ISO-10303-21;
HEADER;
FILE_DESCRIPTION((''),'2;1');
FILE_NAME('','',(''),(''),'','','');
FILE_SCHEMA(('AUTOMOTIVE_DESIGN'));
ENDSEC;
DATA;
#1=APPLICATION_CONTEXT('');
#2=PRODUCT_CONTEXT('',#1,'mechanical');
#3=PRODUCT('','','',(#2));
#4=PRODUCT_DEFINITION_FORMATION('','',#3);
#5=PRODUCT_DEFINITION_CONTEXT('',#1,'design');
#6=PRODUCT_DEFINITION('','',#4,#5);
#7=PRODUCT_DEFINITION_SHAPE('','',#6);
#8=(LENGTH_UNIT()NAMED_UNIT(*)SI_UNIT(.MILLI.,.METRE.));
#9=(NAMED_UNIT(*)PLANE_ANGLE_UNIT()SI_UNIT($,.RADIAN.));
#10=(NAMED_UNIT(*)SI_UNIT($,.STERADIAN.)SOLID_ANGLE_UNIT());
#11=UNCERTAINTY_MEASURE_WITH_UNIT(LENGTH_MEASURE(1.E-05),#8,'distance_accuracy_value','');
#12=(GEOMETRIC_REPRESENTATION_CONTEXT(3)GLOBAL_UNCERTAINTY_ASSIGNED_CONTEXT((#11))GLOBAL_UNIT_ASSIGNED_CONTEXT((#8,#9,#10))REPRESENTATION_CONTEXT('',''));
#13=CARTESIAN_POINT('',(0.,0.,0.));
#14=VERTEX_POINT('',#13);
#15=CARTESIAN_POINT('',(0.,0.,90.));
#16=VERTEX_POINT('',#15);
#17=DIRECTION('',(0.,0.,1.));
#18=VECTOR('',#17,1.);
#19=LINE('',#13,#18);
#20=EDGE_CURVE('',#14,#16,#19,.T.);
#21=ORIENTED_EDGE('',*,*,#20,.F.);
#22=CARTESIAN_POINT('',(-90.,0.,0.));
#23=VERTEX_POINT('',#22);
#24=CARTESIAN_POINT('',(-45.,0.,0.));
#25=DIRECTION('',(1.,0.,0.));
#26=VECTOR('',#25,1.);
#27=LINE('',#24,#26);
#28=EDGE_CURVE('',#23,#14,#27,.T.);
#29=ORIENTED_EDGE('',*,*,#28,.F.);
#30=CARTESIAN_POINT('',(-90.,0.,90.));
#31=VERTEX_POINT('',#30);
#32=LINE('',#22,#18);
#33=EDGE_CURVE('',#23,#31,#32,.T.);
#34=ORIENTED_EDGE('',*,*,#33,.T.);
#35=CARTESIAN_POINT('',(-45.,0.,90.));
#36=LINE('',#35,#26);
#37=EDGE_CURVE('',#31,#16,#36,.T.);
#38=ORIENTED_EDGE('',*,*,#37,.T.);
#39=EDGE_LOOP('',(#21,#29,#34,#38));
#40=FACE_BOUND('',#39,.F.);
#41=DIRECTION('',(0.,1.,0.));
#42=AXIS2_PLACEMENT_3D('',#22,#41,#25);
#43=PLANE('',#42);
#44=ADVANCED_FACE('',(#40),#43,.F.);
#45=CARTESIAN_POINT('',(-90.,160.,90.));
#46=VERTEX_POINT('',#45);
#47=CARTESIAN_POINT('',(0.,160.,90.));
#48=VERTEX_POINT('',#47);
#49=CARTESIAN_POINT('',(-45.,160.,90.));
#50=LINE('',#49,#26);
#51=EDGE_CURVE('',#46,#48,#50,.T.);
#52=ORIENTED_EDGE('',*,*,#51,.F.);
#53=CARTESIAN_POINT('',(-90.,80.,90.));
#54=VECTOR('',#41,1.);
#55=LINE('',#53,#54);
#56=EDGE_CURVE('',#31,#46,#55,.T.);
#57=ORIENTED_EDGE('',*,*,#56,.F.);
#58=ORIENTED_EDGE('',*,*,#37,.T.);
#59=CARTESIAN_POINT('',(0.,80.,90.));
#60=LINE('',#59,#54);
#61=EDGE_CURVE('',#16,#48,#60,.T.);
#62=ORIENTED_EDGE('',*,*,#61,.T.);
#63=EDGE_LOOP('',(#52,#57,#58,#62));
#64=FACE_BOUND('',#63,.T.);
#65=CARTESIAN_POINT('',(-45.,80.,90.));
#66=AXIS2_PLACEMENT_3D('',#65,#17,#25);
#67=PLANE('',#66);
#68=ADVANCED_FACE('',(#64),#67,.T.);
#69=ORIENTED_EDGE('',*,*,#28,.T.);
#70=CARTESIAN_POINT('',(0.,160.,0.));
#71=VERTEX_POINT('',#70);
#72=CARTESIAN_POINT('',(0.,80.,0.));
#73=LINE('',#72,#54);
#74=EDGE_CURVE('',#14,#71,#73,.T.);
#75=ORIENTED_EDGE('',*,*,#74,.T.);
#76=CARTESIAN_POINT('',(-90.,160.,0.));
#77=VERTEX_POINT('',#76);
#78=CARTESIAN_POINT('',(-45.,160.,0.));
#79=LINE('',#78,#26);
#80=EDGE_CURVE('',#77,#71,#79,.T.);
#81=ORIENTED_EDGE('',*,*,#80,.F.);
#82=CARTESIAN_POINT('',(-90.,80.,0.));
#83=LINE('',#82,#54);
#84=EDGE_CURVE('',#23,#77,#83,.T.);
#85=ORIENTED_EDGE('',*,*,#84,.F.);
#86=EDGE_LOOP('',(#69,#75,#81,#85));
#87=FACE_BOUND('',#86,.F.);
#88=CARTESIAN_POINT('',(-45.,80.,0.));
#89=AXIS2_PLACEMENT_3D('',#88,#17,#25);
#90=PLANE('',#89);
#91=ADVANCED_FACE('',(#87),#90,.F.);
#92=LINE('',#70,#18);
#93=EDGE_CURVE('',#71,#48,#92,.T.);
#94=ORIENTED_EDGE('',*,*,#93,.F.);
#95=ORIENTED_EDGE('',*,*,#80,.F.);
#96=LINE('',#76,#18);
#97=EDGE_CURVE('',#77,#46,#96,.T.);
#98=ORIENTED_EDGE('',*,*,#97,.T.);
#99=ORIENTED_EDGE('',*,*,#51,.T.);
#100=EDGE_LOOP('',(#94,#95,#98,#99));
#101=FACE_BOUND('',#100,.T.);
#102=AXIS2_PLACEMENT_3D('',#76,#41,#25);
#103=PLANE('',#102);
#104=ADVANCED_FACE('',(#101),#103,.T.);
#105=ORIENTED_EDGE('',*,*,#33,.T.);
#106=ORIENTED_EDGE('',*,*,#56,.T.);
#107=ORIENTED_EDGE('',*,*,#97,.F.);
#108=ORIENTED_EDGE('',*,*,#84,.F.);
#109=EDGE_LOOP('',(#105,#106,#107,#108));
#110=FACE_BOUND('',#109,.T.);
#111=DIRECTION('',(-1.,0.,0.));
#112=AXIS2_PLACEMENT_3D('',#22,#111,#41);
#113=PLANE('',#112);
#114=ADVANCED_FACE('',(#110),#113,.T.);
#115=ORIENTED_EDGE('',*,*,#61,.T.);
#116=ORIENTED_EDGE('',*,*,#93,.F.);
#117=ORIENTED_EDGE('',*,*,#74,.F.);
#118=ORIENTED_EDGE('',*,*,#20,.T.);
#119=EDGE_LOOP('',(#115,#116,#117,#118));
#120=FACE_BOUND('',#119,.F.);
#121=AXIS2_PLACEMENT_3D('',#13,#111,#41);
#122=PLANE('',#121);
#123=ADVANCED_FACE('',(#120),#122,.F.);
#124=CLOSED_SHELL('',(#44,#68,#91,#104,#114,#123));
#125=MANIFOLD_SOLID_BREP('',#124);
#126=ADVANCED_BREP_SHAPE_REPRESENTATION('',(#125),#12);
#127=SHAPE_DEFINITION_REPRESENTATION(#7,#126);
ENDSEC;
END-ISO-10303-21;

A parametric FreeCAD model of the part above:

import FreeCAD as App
import Part
import Sketcher
Q = App.Units.Quantity


def add_polygon(sketch, points):
    """Adds a closed chain of lines whose ends are joined by coincident constraints."""
    first, n = sketch.GeometryCount, len(points)
    for a, b in zip(points, points[1:] + points[:1]):
        sketch.addGeometry(Part.LineSegment(App.Vector(*a, 0), App.Vector(*b, 0)), False)
    for i in range(n):
        sketch.addConstraint(Sketcher.Constraint("Coincident", first + i, 2, first + (i + 1) % n, 1))

doc = App.newDocument("Part")
body = doc.addObject("PartDesign::Body", "Body")

# Sketch on XY plane
sketch1 = body.newObject("Sketcher::SketchObject", "Sketch")
sketch1.AttachmentSupport = (doc.getObject("XY_Plane"), [""])
sketch1.MapMode = "FlatFace"
add_polygon(sketch1, [(-90, 160), (-90, 0), (0, 0), (0, 160)])  # lines 0-3
sketch1.addConstraint(Sketcher.Constraint("Vertical", 0))
sketch1.addConstraint(Sketcher.Constraint("Horizontal", 1))
sketch1.addConstraint(Sketcher.Constraint("Vertical", 2))
sketch1.addConstraint(Sketcher.Constraint("Horizontal", 3))
sketch1.addConstraint(Sketcher.Constraint("Coincident", 1, 2, -1, 1))
sketch1.addConstraint(Sketcher.Constraint("DistanceX", 1, 1, 1, 2, Q("90 mm")))
sketch1.addConstraint(Sketcher.Constraint("DistanceY", 0, 2, 0, 1, Q("160 mm")))
pad1 = body.newObject("PartDesign::Pad", "Pad")
pad1.Profile = sketch1
pad1.Length = 90

doc.recompute()
